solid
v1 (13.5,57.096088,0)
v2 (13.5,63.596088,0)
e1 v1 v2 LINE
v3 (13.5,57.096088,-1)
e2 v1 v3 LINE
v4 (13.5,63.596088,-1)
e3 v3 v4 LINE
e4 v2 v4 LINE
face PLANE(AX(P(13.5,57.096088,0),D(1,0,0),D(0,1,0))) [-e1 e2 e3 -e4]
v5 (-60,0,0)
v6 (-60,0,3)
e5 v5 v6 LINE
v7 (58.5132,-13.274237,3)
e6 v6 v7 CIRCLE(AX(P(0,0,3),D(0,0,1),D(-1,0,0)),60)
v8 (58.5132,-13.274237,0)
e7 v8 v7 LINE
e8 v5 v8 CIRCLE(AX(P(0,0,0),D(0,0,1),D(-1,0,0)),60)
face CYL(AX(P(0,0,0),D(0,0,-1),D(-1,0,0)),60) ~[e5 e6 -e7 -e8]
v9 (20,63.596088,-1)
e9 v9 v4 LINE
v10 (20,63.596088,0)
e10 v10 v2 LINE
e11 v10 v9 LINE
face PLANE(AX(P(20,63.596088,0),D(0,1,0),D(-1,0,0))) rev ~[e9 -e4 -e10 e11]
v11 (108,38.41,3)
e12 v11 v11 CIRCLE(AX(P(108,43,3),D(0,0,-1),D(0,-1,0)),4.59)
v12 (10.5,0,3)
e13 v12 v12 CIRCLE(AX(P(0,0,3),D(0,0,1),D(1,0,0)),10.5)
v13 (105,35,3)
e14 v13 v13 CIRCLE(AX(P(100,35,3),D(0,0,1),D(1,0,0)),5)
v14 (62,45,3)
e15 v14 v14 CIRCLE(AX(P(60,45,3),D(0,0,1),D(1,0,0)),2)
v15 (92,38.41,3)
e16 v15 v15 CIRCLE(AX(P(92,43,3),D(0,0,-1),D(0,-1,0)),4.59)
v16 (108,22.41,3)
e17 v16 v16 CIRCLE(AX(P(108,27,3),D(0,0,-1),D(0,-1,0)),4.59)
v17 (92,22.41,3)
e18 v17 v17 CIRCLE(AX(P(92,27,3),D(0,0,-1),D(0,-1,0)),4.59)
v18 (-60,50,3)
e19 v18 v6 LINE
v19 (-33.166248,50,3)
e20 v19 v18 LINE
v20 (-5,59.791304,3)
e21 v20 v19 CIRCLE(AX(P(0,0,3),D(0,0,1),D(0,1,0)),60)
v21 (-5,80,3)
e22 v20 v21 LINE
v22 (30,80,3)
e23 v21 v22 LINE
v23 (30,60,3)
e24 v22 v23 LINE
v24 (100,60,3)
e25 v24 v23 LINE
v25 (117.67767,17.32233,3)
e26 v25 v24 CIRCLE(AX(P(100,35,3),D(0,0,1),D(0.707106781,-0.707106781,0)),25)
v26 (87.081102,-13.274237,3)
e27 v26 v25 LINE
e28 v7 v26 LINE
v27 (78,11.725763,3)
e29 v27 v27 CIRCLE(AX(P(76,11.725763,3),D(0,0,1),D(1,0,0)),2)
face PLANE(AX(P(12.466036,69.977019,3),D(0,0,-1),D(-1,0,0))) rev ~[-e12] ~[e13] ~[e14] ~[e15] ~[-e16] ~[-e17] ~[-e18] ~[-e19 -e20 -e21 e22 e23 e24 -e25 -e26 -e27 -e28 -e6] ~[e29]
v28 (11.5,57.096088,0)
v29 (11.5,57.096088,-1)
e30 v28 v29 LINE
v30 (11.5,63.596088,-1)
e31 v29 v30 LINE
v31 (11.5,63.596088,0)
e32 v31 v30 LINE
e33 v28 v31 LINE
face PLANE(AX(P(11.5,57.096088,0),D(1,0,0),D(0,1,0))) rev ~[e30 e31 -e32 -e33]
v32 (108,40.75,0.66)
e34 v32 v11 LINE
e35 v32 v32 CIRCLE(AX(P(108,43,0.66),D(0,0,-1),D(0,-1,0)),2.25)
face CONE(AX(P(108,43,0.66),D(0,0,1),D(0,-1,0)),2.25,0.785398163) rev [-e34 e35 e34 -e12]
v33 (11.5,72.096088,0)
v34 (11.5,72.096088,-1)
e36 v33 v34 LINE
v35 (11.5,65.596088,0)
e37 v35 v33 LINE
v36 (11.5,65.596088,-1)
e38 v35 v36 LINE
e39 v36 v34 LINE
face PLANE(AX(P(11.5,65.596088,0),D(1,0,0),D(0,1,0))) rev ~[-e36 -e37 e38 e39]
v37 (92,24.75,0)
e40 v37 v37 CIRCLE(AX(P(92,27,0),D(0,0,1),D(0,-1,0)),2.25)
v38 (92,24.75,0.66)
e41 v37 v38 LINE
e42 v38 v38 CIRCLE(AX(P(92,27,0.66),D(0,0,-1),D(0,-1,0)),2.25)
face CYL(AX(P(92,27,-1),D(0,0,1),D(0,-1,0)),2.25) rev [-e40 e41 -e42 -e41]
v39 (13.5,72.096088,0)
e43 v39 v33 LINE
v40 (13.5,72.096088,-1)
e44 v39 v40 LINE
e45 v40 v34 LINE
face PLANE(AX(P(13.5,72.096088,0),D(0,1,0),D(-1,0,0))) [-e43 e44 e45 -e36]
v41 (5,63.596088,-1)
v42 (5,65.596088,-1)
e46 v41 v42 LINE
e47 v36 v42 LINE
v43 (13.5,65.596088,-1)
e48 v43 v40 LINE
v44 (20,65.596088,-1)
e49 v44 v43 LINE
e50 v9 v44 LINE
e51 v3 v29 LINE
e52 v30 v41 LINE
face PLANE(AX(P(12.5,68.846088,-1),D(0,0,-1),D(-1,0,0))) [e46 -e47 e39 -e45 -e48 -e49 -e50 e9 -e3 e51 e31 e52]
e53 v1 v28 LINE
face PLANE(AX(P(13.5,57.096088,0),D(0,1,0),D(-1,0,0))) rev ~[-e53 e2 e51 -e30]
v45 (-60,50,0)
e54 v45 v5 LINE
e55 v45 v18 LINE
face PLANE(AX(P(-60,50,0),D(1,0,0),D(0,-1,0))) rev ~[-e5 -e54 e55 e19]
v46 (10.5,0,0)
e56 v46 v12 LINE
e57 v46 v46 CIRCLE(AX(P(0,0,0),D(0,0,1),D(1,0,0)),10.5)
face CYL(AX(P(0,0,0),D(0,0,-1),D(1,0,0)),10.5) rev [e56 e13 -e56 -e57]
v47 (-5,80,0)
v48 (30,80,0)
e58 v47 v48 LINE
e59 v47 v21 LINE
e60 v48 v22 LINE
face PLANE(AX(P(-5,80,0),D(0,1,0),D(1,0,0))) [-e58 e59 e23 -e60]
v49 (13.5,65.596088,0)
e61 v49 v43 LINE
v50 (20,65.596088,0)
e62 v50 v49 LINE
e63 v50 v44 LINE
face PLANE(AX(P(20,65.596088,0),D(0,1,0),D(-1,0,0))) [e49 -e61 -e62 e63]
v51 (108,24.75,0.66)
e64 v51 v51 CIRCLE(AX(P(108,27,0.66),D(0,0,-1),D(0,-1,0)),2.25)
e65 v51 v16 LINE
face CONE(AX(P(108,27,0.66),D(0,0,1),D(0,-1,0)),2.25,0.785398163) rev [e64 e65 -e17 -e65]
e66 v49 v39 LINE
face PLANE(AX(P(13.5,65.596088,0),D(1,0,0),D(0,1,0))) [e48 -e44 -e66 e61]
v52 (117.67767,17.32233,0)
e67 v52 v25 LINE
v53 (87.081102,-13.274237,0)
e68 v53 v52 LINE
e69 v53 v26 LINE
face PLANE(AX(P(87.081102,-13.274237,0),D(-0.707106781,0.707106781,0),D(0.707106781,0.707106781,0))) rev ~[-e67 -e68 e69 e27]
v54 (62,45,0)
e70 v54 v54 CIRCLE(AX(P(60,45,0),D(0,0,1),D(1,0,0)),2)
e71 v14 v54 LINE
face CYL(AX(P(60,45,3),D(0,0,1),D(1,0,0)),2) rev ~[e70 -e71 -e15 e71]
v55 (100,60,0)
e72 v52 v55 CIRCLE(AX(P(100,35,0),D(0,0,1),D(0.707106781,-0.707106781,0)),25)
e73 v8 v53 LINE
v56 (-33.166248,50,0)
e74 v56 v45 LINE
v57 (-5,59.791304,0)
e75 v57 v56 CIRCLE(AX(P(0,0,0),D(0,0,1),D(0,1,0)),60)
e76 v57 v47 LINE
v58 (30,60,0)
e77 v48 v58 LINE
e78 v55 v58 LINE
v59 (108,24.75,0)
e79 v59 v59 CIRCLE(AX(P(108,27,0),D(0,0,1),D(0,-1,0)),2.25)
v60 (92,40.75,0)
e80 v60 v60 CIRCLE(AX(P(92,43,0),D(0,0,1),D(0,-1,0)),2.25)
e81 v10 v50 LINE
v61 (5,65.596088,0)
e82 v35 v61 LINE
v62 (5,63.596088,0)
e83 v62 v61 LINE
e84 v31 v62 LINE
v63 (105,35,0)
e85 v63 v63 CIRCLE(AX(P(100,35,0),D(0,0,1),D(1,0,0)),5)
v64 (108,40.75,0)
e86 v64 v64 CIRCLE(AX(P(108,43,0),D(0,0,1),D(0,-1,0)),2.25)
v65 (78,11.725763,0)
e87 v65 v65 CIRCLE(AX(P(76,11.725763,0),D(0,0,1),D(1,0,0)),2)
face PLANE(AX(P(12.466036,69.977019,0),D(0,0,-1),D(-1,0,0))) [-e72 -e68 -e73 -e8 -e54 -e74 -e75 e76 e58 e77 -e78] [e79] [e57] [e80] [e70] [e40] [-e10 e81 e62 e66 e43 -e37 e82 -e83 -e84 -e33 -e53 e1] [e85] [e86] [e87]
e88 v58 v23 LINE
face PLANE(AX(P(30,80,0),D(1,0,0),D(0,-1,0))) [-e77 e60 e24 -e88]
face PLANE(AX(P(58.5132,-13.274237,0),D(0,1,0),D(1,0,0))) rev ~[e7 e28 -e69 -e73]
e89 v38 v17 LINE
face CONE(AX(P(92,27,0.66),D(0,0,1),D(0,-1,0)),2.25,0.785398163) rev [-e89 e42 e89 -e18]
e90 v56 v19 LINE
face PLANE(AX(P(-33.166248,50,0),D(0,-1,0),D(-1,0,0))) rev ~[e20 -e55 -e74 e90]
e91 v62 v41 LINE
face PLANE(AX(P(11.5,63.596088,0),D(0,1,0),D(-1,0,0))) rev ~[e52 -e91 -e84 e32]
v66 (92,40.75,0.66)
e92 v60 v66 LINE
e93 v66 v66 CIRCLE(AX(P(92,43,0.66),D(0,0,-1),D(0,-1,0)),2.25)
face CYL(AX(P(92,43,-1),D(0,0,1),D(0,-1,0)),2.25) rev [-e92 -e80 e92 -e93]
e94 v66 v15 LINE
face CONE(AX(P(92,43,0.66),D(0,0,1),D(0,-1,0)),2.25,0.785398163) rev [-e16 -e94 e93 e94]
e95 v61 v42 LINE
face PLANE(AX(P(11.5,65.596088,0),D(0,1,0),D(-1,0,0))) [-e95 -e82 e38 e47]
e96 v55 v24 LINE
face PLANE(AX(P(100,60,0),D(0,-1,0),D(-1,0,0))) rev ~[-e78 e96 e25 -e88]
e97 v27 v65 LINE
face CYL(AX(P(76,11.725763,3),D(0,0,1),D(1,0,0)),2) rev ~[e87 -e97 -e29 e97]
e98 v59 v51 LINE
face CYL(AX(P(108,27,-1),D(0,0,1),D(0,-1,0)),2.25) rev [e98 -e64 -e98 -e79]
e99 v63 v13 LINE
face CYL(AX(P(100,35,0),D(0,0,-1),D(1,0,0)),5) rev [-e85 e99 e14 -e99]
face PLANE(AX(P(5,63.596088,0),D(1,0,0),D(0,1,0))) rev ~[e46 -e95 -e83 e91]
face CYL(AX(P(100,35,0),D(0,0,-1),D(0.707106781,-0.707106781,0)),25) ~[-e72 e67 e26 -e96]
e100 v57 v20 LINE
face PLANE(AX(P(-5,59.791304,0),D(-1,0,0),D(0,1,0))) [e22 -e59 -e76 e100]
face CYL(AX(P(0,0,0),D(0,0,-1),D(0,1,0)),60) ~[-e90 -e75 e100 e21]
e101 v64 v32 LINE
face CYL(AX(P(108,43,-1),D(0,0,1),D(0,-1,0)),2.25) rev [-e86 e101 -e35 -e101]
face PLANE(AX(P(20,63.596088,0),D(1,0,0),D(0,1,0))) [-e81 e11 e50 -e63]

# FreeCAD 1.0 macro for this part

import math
import FreeCAD as App
import Part
import Sketcher

V = App.Vector
Q = App.Units.Quantity


def add_polygon(sketch, points):
    """Adds a closed chain of lines whose ends are joined by coincident constraints."""
    first, n = sketch.GeometryCount, len(points)
    for a, b in zip(points, points[1:] + points[:1]):
        sketch.addGeometry(Part.LineSegment(App.Vector(*a, 0), App.Vector(*b, 0)), False)
    for i in range(n):
        sketch.addConstraint(Sketcher.Constraint("Coincident", first + i, 2, first + (i + 1) % n, 1))

doc = App.newDocument("Part")
body = doc.addObject("PartDesign::Body", "Body")

sketch1 = body.newObject("Sketcher::SketchObject", "Sketch")
sketch1.AttachmentSupport = (doc.getObject("XY_Plane"), [""])
sketch1.MapMode = "FlatFace"
sketch1.addGeometry([
    Part.LineSegment(V(-33, 50, 0), V(-60, 50, 0)),
    Part.LineSegment(V(-60, 50, 0), V(-60, 0, 0)),
    Part.ArcOfCircle(Part.Circle(V(0, 0, 0), V(0, 0, 1), 60), math.radians(180), math.radians(347)),
    Part.LineSegment(V(59, -13, 0), V(87, -13, 0)),
    Part.LineSegment(V(87, -13, 0), V(118, 17, 0)),
    Part.ArcOfCircle(Part.Circle(V(100, 35, 0), V(0, 0, 1), 25), math.radians(-45), math.radians(90)),
    Part.LineSegment(V(100, 60, 0), V(0, 60, 0)),
    Part.ArcOfCircle(Part.Circle(V(0, 0, 0), V(0, 0, 1), 60), math.radians(90), math.radians(124)),
    Part.Circle(V(100, 35, 0), V(0, 0, 1), 5),
    Part.Circle(V(0, 0, 0), V(0, 0, 1), 10),
], False)
sketch1.addConstraint([
    Sketcher.Constraint("Coincident", 0, 2, 1, 1),
    Sketcher.Constraint("Tangent", 1, 2, 2, 1),
    Sketcher.Constraint("Coincident", 2, 2, 3, 1),
    Sketcher.Constraint("Coincident", 3, 2, 4, 1),
    Sketcher.Constraint("Tangent", 4, 2, 5, 1),
    Sketcher.Constraint("Tangent", 5, 2, 6, 1),
    Sketcher.Constraint("Tangent", 6, 2, 7, 1),
    Sketcher.Constraint("Coincident", 7, 2, 0, 1),
    Sketcher.Constraint("Horizontal", 0),
    Sketcher.Constraint("Vertical", 1),
    Sketcher.Constraint("Horizontal", 3),
    Sketcher.Constraint("Horizontal", 6),
    Sketcher.Constraint("Coincident", 2, 3, -1, 1),
    Sketcher.Constraint("Coincident", 7, 3, -1, 1),
    Sketcher.Constraint("Coincident", 9, 3, -1, 1),
    Sketcher.Constraint("Coincident", 8, 3, 5, 3),
    Sketcher.Constraint("Equal", 2, 7),
    Sketcher.Constraint("Diameter", 8, Q("10 mm")),
    Sketcher.Constraint("Diameter", 9, Q("21 mm")),
    Sketcher.Constraint("Radius", 2, Q("60 mm")),
    Sketcher.Constraint("Radius", 5, Q("25 mm")),
    Sketcher.Constraint("DistanceX", 6, 2, 6, 1, Q("100 mm")),
    Sketcher.Constraint("DistanceY", 1, 2, 1, 1, Q("50 mm")),
    Sketcher.Constraint("Angle", 4, Q("45 deg")),
    Sketcher.Constraint("DistanceX", 3, 1, 3, 2, Q("28.567901 mm")),
])
pad1 = body.newObject("PartDesign::Pad", "Pad")
pad1.Profile = sketch1
pad1.Length = 3

sketch2 = body.newObject("Sketcher::SketchObject", "Sketch001")
sketch2.AttachmentSupport = (doc.getObject("XY_Plane"), [""])
sketch2.MapMode = "FlatFace"
sketch2.AttachmentOffset = App.Placement(V(0, 0, 3), App.Rotation())
sketch2.addGeometry(Part.Circle(V(60, 45, 0), V(0, 0, 1), 2), False)
sketch2.addConstraint([
    Sketcher.Constraint("Diameter", 0, Q("4 mm")),
    Sketcher.Constraint("DistanceX", -1, 1, 0, 3, Q("60 mm")),
    Sketcher.Constraint("DistanceY", -1, 1, 0, 3, Q("45 mm")),
])
pocket1 = body.newObject("PartDesign::Pocket", "Pocket")
pocket1.Profile = sketch2
pocket1.Type = "UpToFirst"

sketch3 = body.newObject("Sketcher::SketchObject", "Sketch002")
sketch3.AttachmentSupport = (doc.getObject("XY_Plane"), [""])
sketch3.MapMode = "FlatFace"
sketch3.AttachmentOffset = App.Placement(V(0, 0, 3), App.Rotation())
sketch3.addGeometry(Part.Circle(V(76, 11.7, 0), V(0, 0, 1), 2), False)
sketch3.addConstraint([
    Sketcher.Constraint("Diameter", 0, Q("4 mm")),
    Sketcher.Constraint("DistanceX", -1, 1, 0, 3, Q("76 mm")),
    Sketcher.Constraint("DistanceY", -1, 1, 0, 3, Q("11.725763 mm")),
])
pocket2 = body.newObject("PartDesign::Pocket", "Pocket001")
pocket2.Profile = sketch3
pocket2.Type = "UpToFirst"

sketch4 = body.newObject("Sketcher::SketchObject", "Sketch003")
sketch4.AttachmentSupport = (doc.getObject("XY_Plane"), [""])
sketch4.MapMode = "FlatFace"
sketch4.addGeometry([
    Part.LineSegment(V(30, 80, 0), V(30, 60, 0)),
    Part.LineSegment(V(30, 60, 0), V(0, 60, 0)),
    Part.ArcOfCircle(Part.Circle(V(0, 0, 0), V(0, 0, 1), 60), math.radians(90), math.radians(94.78)),
    Part.LineSegment(V(-5, 60, 0), V(-5, 80, 0)),
    Part.LineSegment(V(-5, 80, 0), V(30, 80, 0)),
], False)
sketch4.addConstraint([
    Sketcher.Constraint("Coincident", 0, 2, 1, 1),
    Sketcher.Constraint("Tangent", 1, 2, 2, 1),
    Sketcher.Constraint("Coincident", 2, 2, 3, 1),
    Sketcher.Constraint("Coincident", 3, 2, 4, 1),
    Sketcher.Constraint("Coincident", 4, 2, 0, 1),
    Sketcher.Constraint("Vertical", 0),
    Sketcher.Constraint("Horizontal", 1),
    Sketcher.Constraint("Vertical", 3),
    Sketcher.Constraint("Horizontal", 4),
    Sketcher.Constraint("Coincident", 2, 3, -1, 1),
    Sketcher.Constraint("Radius", 2, Q("60 mm")),
    Sketcher.Constraint("DistanceX", 1, 2, 1, 1, Q("30 mm")),
    Sketcher.Constraint("DistanceX", 4, 1, 4, 2, Q("35 mm")),
    Sketcher.Constraint("DistanceY", 0, 2, 0, 1, Q("20 mm")),
])
pad2 = body.newObject("PartDesign::Pad", "Pad001")
pad2.Profile = sketch4
pad2.Length = 3

sketch5 = body.newObject("Sketcher::SketchObject", "Sketch004")
sketch5.AttachmentSupport = (doc.getObject("XY_Plane"), [""])
sketch5.MapMode = "FlatFace"
add_polygon(sketch5, [(13.5, 72.1), (13.5, 65.6), (20, 65.6), (20, 63.6), (13.5, 63.6), (13.5, 57.1), (11.5, 57.1), (11.5, 63.6), (5, 63.6), (5, 65.6), (11.5, 65.6), (11.5, 72.1)])
sketch5.addConstraint([
    Sketcher.Constraint("Vertical", 0),
    Sketcher.Constraint("Horizontal", 1),
    Sketcher.Constraint("Vertical", 2),
    Sketcher.Constraint("Horizontal", 3),
    Sketcher.Constraint("Vertical", 4),
    Sketcher.Constraint("Horizontal", 5),
    Sketcher.Constraint("Vertical", 6),
    Sketcher.Constraint("Horizontal", 7),
    Sketcher.Constraint("Vertical", 8),
    Sketcher.Constraint("Horizontal", 9),
    Sketcher.Constraint("Vertical", 10),
    Sketcher.Constraint("Horizontal", 11),
    Sketcher.Constraint("Horizontal", 3, 2, 6, 2),
    Sketcher.Constraint("Horizontal", 1, 2, 8, 2),
    Sketcher.Constraint("Vertical", 0, 2, 3, 2),
    Sketcher.Constraint("Vertical", 6, 2, 9, 2),
    Sketcher.Constraint("Equal", 3, 7),
    Sketcher.Constraint("Equal", 9, 0),
    Sketcher.Constraint("Equal", 11, 2),
    Sketcher.Constraint("Equal", 0, 4),
    Sketcher.Constraint("DistanceX", 5, 2, 5, 1, Q("2 mm")),
    Sketcher.Constraint("DistanceX", 1, 1, 1, 2, Q("6.5 mm")),
    Sketcher.Constraint("DistanceX", -1, 1, 1, 2, Q("20 mm")),
    Sketcher.Constraint("DistanceY", -1, 1, 0, 2, Q("65.596088 mm")),
])
pad3 = body.newObject("PartDesign::Pad", "Pad002")
pad3.Profile = sketch5
pad3.Length = 1
pad3.Reversed = True

sketch6 = body.newObject("Sketcher::SketchObject", "Sketch005")
sketch6.AttachmentSupport = (doc.getObject("XY_Plane"), [""])
sketch6.MapMode = "FlatFace"
sketch6.AttachmentOffset = App.Placement(V(0, 0, 3), App.Rotation())
sketch6.addGeometry([
    Part.Circle(V(92, 43, 0), V(0, 0, 1), 2),
    Part.Circle(V(108, 43, 0), V(0, 0, 1), 2),
    Part.Circle(V(108, 27, 0), V(0, 0, 1), 2),
    Part.Circle(V(92, 27, 0), V(0, 0, 1), 2),
], False)
sketch6.addConstraint([
    Sketcher.Constraint("Equal", 0, 1),
    Sketcher.Constraint("Equal", 1, 2),
    Sketcher.Constraint("Equal", 2, 3),
    Sketcher.Constraint("Horizontal", 0, 3, 1, 3),
    Sketcher.Constraint("Horizontal", 2, 3, 3, 3),
    Sketcher.Constraint("Vertical", 1, 3, 2, 3),
    Sketcher.Constraint("Vertical", 0, 3, 3, 3),
    Sketcher.Constraint("Diameter", 0, Q("4 mm")),
    Sketcher.Constraint("DistanceX", -1, 1, 0, 3, Q("92 mm")),
    Sketcher.Constraint("DistanceY", -1, 1, 0, 3, Q("43 mm")),
    Sketcher.Constraint("DistanceX", -1, 1, 1, 3, Q("108 mm")),
    Sketcher.Constraint("DistanceY", -1, 1, 2, 3, Q("27 mm")),
])
pocket3 = body.newObject("PartDesign::Pocket", "Pocket002")
pocket3.Profile = sketch6
pocket3.Length = 10

sketch7 = body.newObject("Sketcher::SketchObject", "Sketch006")
sketch7.AttachmentSupport = (doc.getObject("YZ_Plane"), [""])
sketch7.MapMode = "FlatFace"
sketch7.AttachmentOffset = App.Placement(V(0, 0, 92), App.Rotation())
add_polygon(sketch7, [(43, -1), (43, 3), (38.4, 3), (40.8, 0.7), (40.8, -1)])
sketch7.addGeometry(Part.LineSegment(V(43, 3, 0), V(43, -1, 0)), True)
sketch7.addConstraint([
    Sketcher.Constraint("Vertical", 0),
    Sketcher.Constraint("Horizontal", 1),
    Sketcher.Constraint("Vertical", 3),
    Sketcher.Constraint("Horizontal", 4),
    Sketcher.Constraint("Vertical", 5),
    Sketcher.Constraint("Coincident", 5, 1, 0, 2),
    Sketcher.Constraint("Horizontal", 3, 2, 5, 2),
    Sketcher.Constraint("DistanceY", 0, 1, 0, 2, Q("4 mm")),
    Sketcher.Constraint("Angle", 2, Q("-45 deg")),
    Sketcher.Constraint("DistanceX", -1, 1, 0, 2, Q("43 mm")),
    Sketcher.Constraint("DistanceY", -1, 1, 0, 2, Q("3 mm")),
    Sketcher.Constraint("DistanceX", 1, 2, 1, 1, Q("4.59 mm")),
    Sketcher.Constraint("DistanceX", 4, 1, 4, 2, Q("2.25 mm")),
])
groove = body.newObject("PartDesign::Groove", "Groove")
groove.Profile = sketch7
groove.ReferenceAxis = (sketch7, ["Axis0"])
groove.Angle = 360
doc.recompute()

linearpattern = body.newObject("PartDesign::LinearPattern", "LinearPattern")
linearpattern.Originals = [groove]
linearpattern.Direction = (doc.getObject("X_Axis"), [""])
linearpattern.Mode = "offset"
linearpattern.Offset = 16
linearpattern.Occurrences = 2
body.Tip = linearpattern
doc.recompute()

linearpattern2 = body.newObject("PartDesign::LinearPattern", "LinearPattern001")
linearpattern2.Originals = [groove]
linearpattern2.Direction = (doc.getObject("Y_Axis"), [""])
linearpattern2.Mode = "offset"
linearpattern2.Offset = 16
linearpattern2.Occurrences = 2
linearpattern2.Reversed = True
body.Tip = linearpattern2
doc.recompute()

datumline = body.newObject("PartDesign::Line", "DatumLine")
datumline.Placement = App.Placement(V(0, 0, 0), App.Rotation(V(0, 0, 1), V(0.707106781, -0.707106781, 0)))
linearpattern3 = body.newObject("PartDesign::LinearPattern", "LinearPattern002")
linearpattern3.Originals = [groove]
linearpattern3.Direction = (datumline, [""])
linearpattern3.Mode = "offset"
linearpattern3.Offset = 22.627417
linearpattern3.Occurrences = 2
body.Tip = linearpattern3

doc.recompute()
